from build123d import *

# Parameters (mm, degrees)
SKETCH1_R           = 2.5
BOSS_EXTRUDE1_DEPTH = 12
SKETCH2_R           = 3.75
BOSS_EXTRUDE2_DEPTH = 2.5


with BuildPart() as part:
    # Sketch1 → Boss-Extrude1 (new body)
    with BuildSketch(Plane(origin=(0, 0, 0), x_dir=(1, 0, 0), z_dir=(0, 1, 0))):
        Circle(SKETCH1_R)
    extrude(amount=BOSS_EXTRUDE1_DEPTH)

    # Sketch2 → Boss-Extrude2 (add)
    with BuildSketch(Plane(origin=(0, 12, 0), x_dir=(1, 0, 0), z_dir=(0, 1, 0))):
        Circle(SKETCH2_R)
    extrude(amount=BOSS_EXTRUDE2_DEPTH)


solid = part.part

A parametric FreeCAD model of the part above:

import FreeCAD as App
import Part
import Sketcher
from FreeCAD import Vector
Q = App.Units.Quantity

doc = App.newDocument("Part")
body = doc.addObject("PartDesign::Body", "Body")

# Sketch on XZ plane
sketch1 = doc.addObject("Sketcher::SketchObject", "Sketch")
body.addObject(sketch1)
sketch1.AttachmentSupport = (doc.XZ_Plane, [""])
sketch1.MapMode = "FlatFace"
sketch1.addGeometry(Part.Circle(Vector(0, 0, 0), Vector(0, 0, 1), 2.5), False)
sketch1.addConstraint([
    Sketcher.Constraint("Coincident", 0, 3, -1, 1),
    Sketcher.Constraint("Diameter", 0, Q("5 mm")),
])
pad1 = doc.addObject("PartDesign::Pad", "Pad")
body.addObject(pad1)
pad1.Profile = sketch1
pad1.Length = 12
pad1.Reversed = True

# Sketch on XZ plane
sketch2 = doc.addObject("Sketcher::SketchObject", "Sketch001")
body.addObject(sketch2)
sketch2.AttachmentSupport = (doc.XZ_Plane, [""])
sketch2.MapMode = "FlatFace"
sketch2.AttachmentOffset = App.Placement(Vector(0, 0, -12), App.Rotation())
sketch2.addGeometry(Part.Circle(Vector(0, 0, 0), Vector(0, 0, 1), 3.75), False)
sketch2.addConstraint([
    Sketcher.Constraint("Coincident", 0, 3, -1, 1),
    Sketcher.Constraint("Diameter", 0, Q("7.5 mm")),
])
pad2 = doc.addObject("PartDesign::Pad", "Pad001")
body.addObject(pad2)
pad2.Profile = sketch2
pad2.Length = 2.5
pad2.Reversed = True

doc.recompute()
